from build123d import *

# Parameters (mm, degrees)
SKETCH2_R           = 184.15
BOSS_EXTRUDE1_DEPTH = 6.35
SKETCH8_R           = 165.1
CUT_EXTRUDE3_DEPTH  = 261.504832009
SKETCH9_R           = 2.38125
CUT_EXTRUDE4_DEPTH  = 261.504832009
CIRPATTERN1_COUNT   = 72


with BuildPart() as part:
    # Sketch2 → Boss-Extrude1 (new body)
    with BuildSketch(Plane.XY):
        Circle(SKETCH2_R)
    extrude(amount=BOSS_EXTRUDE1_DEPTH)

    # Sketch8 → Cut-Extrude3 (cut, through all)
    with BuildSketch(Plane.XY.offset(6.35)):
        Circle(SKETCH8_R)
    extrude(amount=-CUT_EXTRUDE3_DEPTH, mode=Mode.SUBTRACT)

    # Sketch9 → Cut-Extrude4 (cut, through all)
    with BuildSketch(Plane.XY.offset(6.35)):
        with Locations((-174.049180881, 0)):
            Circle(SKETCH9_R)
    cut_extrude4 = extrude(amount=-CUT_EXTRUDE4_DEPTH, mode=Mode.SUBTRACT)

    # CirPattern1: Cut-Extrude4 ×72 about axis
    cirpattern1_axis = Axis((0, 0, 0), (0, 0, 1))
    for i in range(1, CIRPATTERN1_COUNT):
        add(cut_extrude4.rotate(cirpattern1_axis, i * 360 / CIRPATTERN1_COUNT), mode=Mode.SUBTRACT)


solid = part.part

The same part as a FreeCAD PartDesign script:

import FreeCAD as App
import Part
import Sketcher

V = App.Vector
Q = App.Units.Quantity

doc = App.newDocument("Part")
body = doc.addObject("PartDesign::Body", "Body")

# Sketch on XY plane
sketch1 = body.newObject("Sketcher::SketchObject", "Sketch")
sketch1.AttachmentSupport = (doc.getObject("XY_Plane"), [""])
sketch1.MapMode = "FlatFace"
sketch1.addGeometry(Part.Circle(V(0, 0, 0), V(0, 0, 1), 184.15), False)
sketch1.addConstraint([
    Sketcher.Constraint("Coincident", 0, 3, -1, 1),
    Sketcher.Constraint("Diameter", 0, Q("14.5 in")),
])
pad1 = body.newObject("PartDesign::Pad", "Pad")
pad1.Profile = sketch1
pad1.Length = Q("0.25 in")

# Sketch on XY plane
sketch2 = body.newObject("Sketcher::SketchObject", "Sketch001")
sketch2.AttachmentSupport = (doc.getObject("XY_Plane"), [""])
sketch2.MapMode = "FlatFace"
sketch2.AttachmentOffset = App.Placement(V(0, 0, 0.25 * 25.4), App.Rotation())
sketch2.addGeometry(Part.Circle(V(0, 0, 0), V(0, 0, 1), 165.1), False)
sketch2.addConstraint([
    Sketcher.Constraint("Coincident", 0, 3, -1, 1),
    Sketcher.Constraint("Diameter", 0, Q("13 in")),
])
pocket1 = body.newObject("PartDesign::Pocket", "Pocket")
pocket1.Profile = sketch2
pocket1.Type = "ThroughAll"

# Sketch on XY plane
sketch3 = body.newObject("Sketcher::SketchObject", "Sketch002")
sketch3.AttachmentSupport = (doc.getObject("XY_Plane"), [""])
sketch3.MapMode = "FlatFace"
sketch3.AttachmentOffset = App.Placement(V(0, 0, 0.25 * 25.4), App.Rotation())
sketch3.addGeometry(Part.Circle(V(-174.049181, 0, 0), V(0, 0, 1), 2.38125), False)
sketch3.addConstraint([
    Sketcher.Constraint("PointOnObject", 0, 3, -1),
    Sketcher.Constraint("Diameter", 0, Q("0.1875 in")),
    Sketcher.Constraint("DistanceX", 0, 3, -1, 1, 174.049181),
])
pocket2 = body.newObject("PartDesign::Pocket", "Pocket001")
pocket2.Profile = sketch3
pocket2.Type = "ThroughAll"
doc.recompute()

polarpattern = body.newObject("PartDesign::PolarPattern", "PolarPattern")
polarpattern.Originals = [pocket2]
polarpattern.Axis = (doc.getObject("Z_Axis"), [""])
polarpattern.Angle = 360
polarpattern.Occurrences = 72
body.Tip = polarpattern

doc.recompute()
